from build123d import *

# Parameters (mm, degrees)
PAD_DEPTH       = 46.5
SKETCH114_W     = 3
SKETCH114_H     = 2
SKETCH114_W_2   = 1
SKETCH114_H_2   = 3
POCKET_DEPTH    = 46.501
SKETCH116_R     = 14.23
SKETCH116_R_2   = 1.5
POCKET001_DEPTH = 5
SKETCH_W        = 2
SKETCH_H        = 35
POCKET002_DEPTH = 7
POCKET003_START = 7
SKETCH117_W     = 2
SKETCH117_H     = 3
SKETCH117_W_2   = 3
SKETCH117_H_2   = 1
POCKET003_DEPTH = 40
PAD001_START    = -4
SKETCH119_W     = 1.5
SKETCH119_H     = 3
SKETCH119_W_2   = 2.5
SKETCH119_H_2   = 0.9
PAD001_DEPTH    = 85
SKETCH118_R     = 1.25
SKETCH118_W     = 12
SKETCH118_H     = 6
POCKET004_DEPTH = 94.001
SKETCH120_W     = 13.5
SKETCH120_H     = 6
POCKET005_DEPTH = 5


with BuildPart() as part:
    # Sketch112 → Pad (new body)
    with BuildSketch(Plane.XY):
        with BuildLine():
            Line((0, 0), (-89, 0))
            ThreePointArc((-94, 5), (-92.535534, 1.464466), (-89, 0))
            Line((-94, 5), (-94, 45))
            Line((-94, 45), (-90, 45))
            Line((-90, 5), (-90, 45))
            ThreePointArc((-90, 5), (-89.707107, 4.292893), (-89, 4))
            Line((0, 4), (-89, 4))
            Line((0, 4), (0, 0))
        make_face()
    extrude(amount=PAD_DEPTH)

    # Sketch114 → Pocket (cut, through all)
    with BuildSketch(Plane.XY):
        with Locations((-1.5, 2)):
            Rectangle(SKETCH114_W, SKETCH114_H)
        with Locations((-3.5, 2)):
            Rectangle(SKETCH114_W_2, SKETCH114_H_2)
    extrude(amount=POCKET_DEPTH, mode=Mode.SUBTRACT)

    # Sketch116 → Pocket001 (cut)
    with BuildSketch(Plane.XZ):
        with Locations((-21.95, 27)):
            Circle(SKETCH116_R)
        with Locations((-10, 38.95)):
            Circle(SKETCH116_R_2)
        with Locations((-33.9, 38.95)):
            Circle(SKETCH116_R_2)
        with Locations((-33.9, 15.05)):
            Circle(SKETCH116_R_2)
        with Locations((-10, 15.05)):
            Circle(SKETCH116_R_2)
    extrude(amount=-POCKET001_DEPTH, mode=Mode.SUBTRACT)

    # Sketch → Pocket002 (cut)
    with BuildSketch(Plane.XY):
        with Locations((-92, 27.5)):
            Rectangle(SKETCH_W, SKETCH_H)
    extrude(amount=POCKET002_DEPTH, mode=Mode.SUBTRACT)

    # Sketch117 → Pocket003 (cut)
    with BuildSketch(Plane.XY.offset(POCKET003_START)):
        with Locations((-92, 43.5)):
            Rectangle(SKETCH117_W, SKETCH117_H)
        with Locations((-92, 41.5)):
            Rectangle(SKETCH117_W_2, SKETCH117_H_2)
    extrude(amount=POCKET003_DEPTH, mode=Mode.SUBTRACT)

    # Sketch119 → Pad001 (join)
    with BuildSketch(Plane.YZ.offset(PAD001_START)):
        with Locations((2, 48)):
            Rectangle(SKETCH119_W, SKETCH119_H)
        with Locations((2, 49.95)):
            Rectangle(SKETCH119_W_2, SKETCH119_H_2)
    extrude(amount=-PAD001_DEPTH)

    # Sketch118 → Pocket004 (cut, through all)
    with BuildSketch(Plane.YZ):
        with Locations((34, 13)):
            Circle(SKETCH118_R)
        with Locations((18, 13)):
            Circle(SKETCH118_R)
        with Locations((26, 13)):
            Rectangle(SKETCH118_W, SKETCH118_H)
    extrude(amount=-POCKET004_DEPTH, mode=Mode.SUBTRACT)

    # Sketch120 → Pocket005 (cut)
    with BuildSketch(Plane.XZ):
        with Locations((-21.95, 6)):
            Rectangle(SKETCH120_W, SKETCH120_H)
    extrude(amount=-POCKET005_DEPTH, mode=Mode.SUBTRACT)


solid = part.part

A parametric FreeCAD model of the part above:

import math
import FreeCAD as App
import Part
import Sketcher

doc = App.newDocument("Part")
body = doc.addObject("PartDesign::Body", "Body")

# Sketch on XY plane
sketch1 = body.newObject("Sketcher::SketchObject", "Sketch")
sketch1.AttachmentSupport = (doc.getObject("XY_Plane"), [""])
sketch1.MapMode = "FlatFace"
sketch1.addGeometry(Part.LineSegment(App.Vector(-89, 0, 0), App.Vector(0, 0, 0)), False)
sketch1.addGeometry(Part.LineSegment(App.Vector(0, 0, 0), App.Vector(0, 4, 0)), False)
sketch1.addGeometry(Part.LineSegment(App.Vector(0, 4, 0), App.Vector(-89, 4, 0)), False)
sketch1.addGeometry(Part.ArcOfCircle(Part.Circle(App.Vector(-89.000001, 4.999999, 0), App.Vector(0, 0, 1), 0.999999), math.radians(179.999957), math.radians(270.000043)), False)
sketch1.addGeometry(Part.LineSegment(App.Vector(-90, 5, 0), App.Vector(-90, 45, 0)), False)
sketch1.addGeometry(Part.LineSegment(App.Vector(-90, 45, 0), App.Vector(-94, 45, 0)), False)
sketch1.addGeometry(Part.LineSegment(App.Vector(-94, 45, 0), App.Vector(-94, 5, 0)), False)
sketch1.addGeometry(Part.ArcOfCircle(Part.Circle(App.Vector(-89, 5, 0), App.Vector(0, 0, 1), 5), math.radians(179.999996), math.radians(270.000004)), False)
sketch1.addConstraint(Sketcher.Constraint("Coincident", 0, 2, 1, 1))
sketch1.addConstraint(Sketcher.Constraint("Coincident", 1, 2, 2, 1))
sketch1.addConstraint(Sketcher.Constraint("Tangent", 2, 2, 3, 2))
sketch1.addConstraint(Sketcher.Constraint("Tangent", 3, 1, 4, 1))
sketch1.addConstraint(Sketcher.Constraint("Coincident", 4, 2, 5, 1))
sketch1.addConstraint(Sketcher.Constraint("Coincident", 5, 2, 6, 1))
sketch1.addConstraint(Sketcher.Constraint("Tangent", 6, 2, 7, 1))
sketch1.addConstraint(Sketcher.Constraint("Tangent", 7, 2, 0, 1))
sketch1.addConstraint(Sketcher.Constraint("Horizontal", 0))
sketch1.addConstraint(Sketcher.Constraint("Vertical", 1))
sketch1.addConstraint(Sketcher.Constraint("Horizontal", 2))
sketch1.addConstraint(Sketcher.Constraint("Vertical", 4))
sketch1.addConstraint(Sketcher.Constraint("Horizontal", 5))
sketch1.addConstraint(Sketcher.Constraint("Vertical", 6))
sketch1.addConstraint(Sketcher.Constraint("Coincident", 0, 2, -1, 1))
sketch1.addConstraint(Sketcher.Constraint("Coincident", 7, 3, 3, 3))
sketch1.addConstraint(Sketcher.Constraint("Radius", 3, 0.999999))
sketch1.addConstraint(Sketcher.Constraint("Radius", 7, 5.0))
sketch1.addConstraint(Sketcher.Constraint("DistanceX", 0, 1, 0, 2, 89.0))
sketch1.addConstraint(Sketcher.Constraint("DistanceY", 4, 1, 4, 2, 40.0))
pad1 = body.newObject("PartDesign::Pad", "Pad")
pad1.Profile = sketch1
pad1.Length = 46.5

# Sketch on XY plane
sketch2 = body.newObject("Sketcher::SketchObject", "Sketch001")
sketch2.AttachmentSupport = (doc.getObject("XY_Plane"), [""])
sketch2.MapMode = "FlatFace"
sketch2.addGeometry(Part.LineSegment(App.Vector(-3, 1, 0), App.Vector(0, 1, 0)), False)
sketch2.addGeometry(Part.LineSegment(App.Vector(0, 1, 0), App.Vector(0, 3, 0)), False)
sketch2.addGeometry(Part.LineSegment(App.Vector(0, 3, 0), App.Vector(-3, 3, 0)), False)
sketch2.addGeometry(Part.LineSegment(App.Vector(-3, 3, 0), App.Vector(-3, 3.5, 0)), False)
sketch2.addGeometry(Part.LineSegment(App.Vector(-3, 3.5, 0), App.Vector(-4, 3.5, 0)), False)
sketch2.addGeometry(Part.LineSegment(App.Vector(-4, 3.5, 0), App.Vector(-4, 0.5, 0)), False)
sketch2.addGeometry(Part.LineSegment(App.Vector(-4, 0.5, 0), App.Vector(-3, 0.5, 0)), False)
sketch2.addGeometry(Part.LineSegment(App.Vector(-3, 0.5, 0), App.Vector(-3, 1, 0)), False)
sketch2.addConstraint(Sketcher.Constraint("Coincident", 0, 2, 1, 1))
sketch2.addConstraint(Sketcher.Constraint("Coincident", 1, 2, 2, 1))
sketch2.addConstraint(Sketcher.Constraint("Coincident", 2, 2, 3, 1))
sketch2.addConstraint(Sketcher.Constraint("Coincident", 3, 2, 4, 1))
sketch2.addConstraint(Sketcher.Constraint("Coincident", 4, 2, 5, 1))
sketch2.addConstraint(Sketcher.Constraint("Coincident", 5, 2, 6, 1))
sketch2.addConstraint(Sketcher.Constraint("Coincident", 6, 2, 7, 1))
sketch2.addConstraint(Sketcher.Constraint("Coincident", 7, 2, 0, 1))
sketch2.addConstraint(Sketcher.Constraint("Horizontal", 0))
sketch2.addConstraint(Sketcher.Constraint("Vertical", 1))
sketch2.addConstraint(Sketcher.Constraint("Horizontal", 2))
sketch2.addConstraint(Sketcher.Constraint("Vertical", 3))
sketch2.addConstraint(Sketcher.Constraint("Horizontal", 4))
sketch2.addConstraint(Sketcher.Constraint("Vertical", 5))
sketch2.addConstraint(Sketcher.Constraint("Horizontal", 6))
sketch2.addConstraint(Sketcher.Constraint("Vertical", 7))
sketch2.addConstraint(Sketcher.Constraint("PointOnObject", 0, 2, -2))
sketch2.addConstraint(Sketcher.Constraint("Vertical", 3, 2, 6, 2))
sketch2.addConstraint(Sketcher.Constraint("Equal", 2, 5))
sketch2.addConstraint(Sketcher.Constraint("Equal", 3, 7))
sketch2.addConstraint(Sketcher.Constraint("DistanceX", 0, 1, 0, 2, 3.0))
sketch2.addConstraint(Sketcher.Constraint("DistanceX", 4, 2, 4, 1, 1.0))
sketch2.addConstraint(Sketcher.Constraint("DistanceY", 1, 1, 1, 2, 2.0))
sketch2.addConstraint(Sketcher.Constraint("DistanceY", -1, 1, 0, 2, 1.0))
pocket1 = body.newObject("PartDesign::Pocket", "Pocket")
pocket1.Profile = sketch2
pocket1.Type = "ThroughAll"
pocket1.Reversed = True

# Sketch on XZ plane
sketch3 = body.newObject("Sketcher::SketchObject", "Sketch002")
sketch3.AttachmentSupport = (doc.getObject("XZ_Plane"), [""])
sketch3.MapMode = "FlatFace"
sketch3.addGeometry(Part.Circle(App.Vector(-21.95, 27, 0), App.Vector(0, 0, 1), 14.23), False)
sketch3.addGeometry(Part.Circle(App.Vector(-10, 38.95, 0), App.Vector(0, 0, 1), 1.5), False)
sketch3.addGeometry(Part.Circle(App.Vector(-33.9, 38.95, 0), App.Vector(0, 0, 1), 1.5), False)
sketch3.addGeometry(Part.Circle(App.Vector(-33.9, 15.05, 0), App.Vector(0, 0, 1), 1.5), False)
sketch3.addGeometry(Part.Circle(App.Vector(-10, 15.05, 0), App.Vector(0, 0, 1), 1.5), False)
sketch3.addConstraint(Sketcher.Constraint("Equal", 1, 2))
sketch3.addConstraint(Sketcher.Constraint("Equal", 2, 3))
sketch3.addConstraint(Sketcher.Constraint("Equal", 3, 4))
sketch3.addConstraint(Sketcher.Constraint("Horizontal", 1, 3, 2, 3))
sketch3.addConstraint(Sketcher.Constraint("Horizontal", 3, 3, 4, 3))
sketch3.addConstraint(Sketcher.Constraint("Vertical", 2, 3, 3, 3))
sketch3.addConstraint(Sketcher.Constraint("Vertical", 1, 3, 4, 3))
sketch3.addConstraint(Sketcher.Constraint("Diameter", 1, 3.0))
sketch3.addConstraint(Sketcher.Constraint("Diameter", 0, 28.46))
sketch3.addConstraint(Sketcher.Constraint("DistanceY", -1, 1, 0, 3, 27.0))
sketch3.addConstraint(Sketcher.Constraint("DistanceX", 1, 3, -1, 1, 10.0))
sketch3.addConstraint(Sketcher.Constraint("DistanceX", 2, 3, -1, 1, 33.9))
sketch3.addConstraint(Sketcher.Constraint("DistanceY", 3, 3, 2, 3, 23.9))
sketch3.addConstraint(Sketcher.Constraint("DistanceX", 0, 3, -1, 1, 21.95))
sketch3.addConstraint(Sketcher.Constraint("DistanceY", -1, 1, 1, 3, 38.95))
pocket2 = body.newObject("PartDesign::Pocket", "Pocket001")
pocket2.Profile = sketch3
pocket2.Length = 5

# Sketch on XY plane
sketch4 = body.newObject("Sketcher::SketchObject", "Sketch003")
sketch4.AttachmentSupport = (doc.getObject("XY_Plane"), [""])
sketch4.MapMode = "FlatFace"
sketch4.addGeometry(Part.LineSegment(App.Vector(-93, 45, 0), App.Vector(-93, 10, 0)), False)
sketch4.addGeometry(Part.LineSegment(App.Vector(-93, 10, 0), App.Vector(-91, 10, 0)), False)
sketch4.addGeometry(Part.LineSegment(App.Vector(-91, 10, 0), App.Vector(-91, 45, 0)), False)
sketch4.addGeometry(Part.LineSegment(App.Vector(-91, 45, 0), App.Vector(-93, 45, 0)), False)
sketch4.addConstraint(Sketcher.Constraint("Coincident", 0, 2, 1, 1))
sketch4.addConstraint(Sketcher.Constraint("Coincident", 1, 2, 2, 1))
sketch4.addConstraint(Sketcher.Constraint("Coincident", 2, 2, 3, 1))
sketch4.addConstraint(Sketcher.Constraint("Coincident", 3, 2, 0, 1))
sketch4.addConstraint(Sketcher.Constraint("Vertical", 0))
sketch4.addConstraint(Sketcher.Constraint("Horizontal", 1))
sketch4.addConstraint(Sketcher.Constraint("Vertical", 2))
sketch4.addConstraint(Sketcher.Constraint("Horizontal", 3))
sketch4.addConstraint(Sketcher.Constraint("DistanceX", 1, 1, 1, 2, 2.0))
sketch4.addConstraint(Sketcher.Constraint("DistanceY", 0, 2, 0, 1, 35.0))
sketch4.addConstraint(Sketcher.Constraint("DistanceX", 0, 2, -1, 1, 93.0))
sketch4.addConstraint(Sketcher.Constraint("DistanceY", -1, 1, 0, 2, 10.0))
pocket3 = body.newObject("PartDesign::Pocket", "Pocket002")
pocket3.Profile = sketch4
pocket3.Length = 7
pocket3.Reversed = True

# Sketch on XY plane
sketch5 = body.newObject("Sketcher::SketchObject", "Sketch004")
sketch5.AttachmentSupport = (doc.getObject("XY_Plane"), [""])
sketch5.MapMode = "FlatFace"
sketch5.AttachmentOffset = App.Placement(App.Vector(0, 0, 7), App.Rotation())
sketch5.addGeometry(Part.LineSegment(App.Vector(-93, 45, 0), App.Vector(-93, 42, 0)), False)
sketch5.addGeometry(Part.LineSegment(App.Vector(-93, 42, 0), App.Vector(-93.5, 42, 0)), False)
sketch5.addGeometry(Part.LineSegment(App.Vector(-93.5, 42, 0), App.Vector(-93.5, 41, 0)), False)
sketch5.addGeometry(Part.LineSegment(App.Vector(-93.5, 41, 0), App.Vector(-90.5, 41, 0)), False)
sketch5.addGeometry(Part.LineSegment(App.Vector(-90.5, 41, 0), App.Vector(-90.5, 42, 0)), False)
sketch5.addGeometry(Part.LineSegment(App.Vector(-90.5, 42, 0), App.Vector(-91, 42, 0)), False)
sketch5.addGeometry(Part.LineSegment(App.Vector(-91, 42, 0), App.Vector(-91, 45, 0)), False)
sketch5.addGeometry(Part.LineSegment(App.Vector(-91, 45, 0), App.Vector(-93, 45, 0)), False)
sketch5.addConstraint(Sketcher.Constraint("Coincident", 0, 2, 1, 1))
sketch5.addConstraint(Sketcher.Constraint("Coincident", 1, 2, 2, 1))
sketch5.addConstraint(Sketcher.Constraint("Coincident", 2, 2, 3, 1))
sketch5.addConstraint(Sketcher.Constraint("Coincident", 3, 2, 4, 1))
sketch5.addConstraint(Sketcher.Constraint("Coincident", 4, 2, 5, 1))
sketch5.addConstraint(Sketcher.Constraint("Coincident", 5, 2, 6, 1))
sketch5.addConstraint(Sketcher.Constraint("Coincident", 6, 2, 7, 1))
sketch5.addConstraint(Sketcher.Constraint("Coincident", 7, 2, 0, 1))
sketch5.addConstraint(Sketcher.Constraint("Vertical", 0))
sketch5.addConstraint(Sketcher.Constraint("Horizontal", 1))
sketch5.addConstraint(Sketcher.Constraint("Vertical", 2))
sketch5.addConstraint(Sketcher.Constraint("Horizontal", 3))
sketch5.addConstraint(Sketcher.Constraint("Vertical", 4))
sketch5.addConstraint(Sketcher.Constraint("Horizontal", 5))
sketch5.addConstraint(Sketcher.Constraint("Vertical", 6))
sketch5.addConstraint(Sketcher.Constraint("Horizontal", 7))
sketch5.addConstraint(Sketcher.Constraint("Horizontal", 1, 2, 4, 2))
sketch5.addConstraint(Sketcher.Constraint("Equal", 1, 5))
sketch5.addConstraint(Sketcher.Constraint("Equal", 3, 0))
sketch5.addConstraint(Sketcher.Constraint("DistanceX", 3, 1, 3, 2, 3.0))
sketch5.addConstraint(Sketcher.Constraint("DistanceX", 7, 2, 7, 1, 2.0))
sketch5.addConstraint(Sketcher.Constraint("DistanceY", 2, 2, 2, 1, 1.0))
sketch5.addConstraint(Sketcher.Constraint("DistanceX", 0, 2, -1, 1, 93.0))
sketch5.addConstraint(Sketcher.Constraint("DistanceY", -1, 1, 0, 2, 42.0))
pocket4 = body.newObject("PartDesign::Pocket", "Pocket003")
pocket4.Profile = sketch5
pocket4.Length = 40
pocket4.Reversed = True

# Sketch on YZ plane
sketch6 = body.newObject("Sketcher::SketchObject", "Sketch005")
sketch6.AttachmentSupport = (doc.getObject("YZ_Plane"), [""])
sketch6.MapMode = "FlatFace"
sketch6.AttachmentOffset = App.Placement(App.Vector(0, 0, -4), App.Rotation())
sketch6.addGeometry(Part.LineSegment(App.Vector(1.25, 49.5, 0), App.Vector(1.25, 46.5, 0)), False)
sketch6.addGeometry(Part.LineSegment(App.Vector(1.25, 46.5, 0), App.Vector(2.75, 46.5, 0)), False)
sketch6.addGeometry(Part.LineSegment(App.Vector(2.75, 46.5, 0), App.Vector(2.75, 49.5, 0)), False)
sketch6.addGeometry(Part.LineSegment(App.Vector(2.75, 49.5, 0), App.Vector(3.25, 49.5, 0)), False)
sketch6.addGeometry(Part.LineSegment(App.Vector(3.25, 49.5, 0), App.Vector(3.25, 50.4, 0)), False)
sketch6.addGeometry(Part.LineSegment(App.Vector(3.25, 50.4, 0), App.Vector(0.75, 50.4, 0)), False)
sketch6.addGeometry(Part.LineSegment(App.Vector(0.75, 50.4, 0), App.Vector(0.75, 49.5, 0)), False)
sketch6.addGeometry(Part.LineSegment(App.Vector(0.75, 49.5, 0), App.Vector(1.25, 49.5, 0)), False)
sketch6.addConstraint(Sketcher.Constraint("Coincident", 0, 2, 1, 1))
sketch6.addConstraint(Sketcher.Constraint("Coincident", 1, 2, 2, 1))
sketch6.addConstraint(Sketcher.Constraint("Coincident", 2, 2, 3, 1))
sketch6.addConstraint(Sketcher.Constraint("Coincident", 3, 2, 4, 1))
sketch6.addConstraint(Sketcher.Constraint("Coincident", 4, 2, 5, 1))
sketch6.addConstraint(Sketcher.Constraint("Coincident", 5, 2, 6, 1))
sketch6.addConstraint(Sketcher.Constraint("Coincident", 6, 2, 7, 1))
sketch6.addConstraint(Sketcher.Constraint("Coincident", 7, 2, 0, 1))
sketch6.addConstraint(Sketcher.Constraint("Vertical", 0))
sketch6.addConstraint(Sketcher.Constraint("Horizontal", 1))
sketch6.addConstraint(Sketcher.Constraint("Vertical", 2))
sketch6.addConstraint(Sketcher.Constraint("Horizontal", 3))
sketch6.addConstraint(Sketcher.Constraint("Vertical", 4))
sketch6.addConstraint(Sketcher.Constraint("Horizontal", 5))
sketch6.addConstraint(Sketcher.Constraint("Vertical", 6))
sketch6.addConstraint(Sketcher.Constraint("Horizontal", 7))
sketch6.addConstraint(Sketcher.Constraint("Horizontal", 3, 2, 6, 2))
sketch6.addConstraint(Sketcher.Constraint("Equal", 3, 7))
sketch6.addConstraint(Sketcher.Constraint("DistanceY", 0, 2, 0, 1, 3.0))
sketch6.addConstraint(Sketcher.Constraint("DistanceX", 1, 1, 1, 2, 1.5))
sketch6.addConstraint(Sketcher.Constraint("DistanceX", 3, 1, 3, 2, 0.5))
sketch6.addConstraint(Sketcher.Constraint("DistanceY", 4, 1, 4, 2, 0.9))
sketch6.addConstraint(Sketcher.Constraint("DistanceY", -1, 1, 0, 2, 46.5))
sketch6.addConstraint(Sketcher.Constraint("DistanceX", -1, 1, 0, 2, 1.25))
pad2 = body.newObject("PartDesign::Pad", "Pad001")
pad2.Profile = sketch6
pad2.Length = 85
pad2.Reversed = True

# Sketch on YZ plane
sketch7 = body.newObject("Sketcher::SketchObject", "Sketch006")
sketch7.AttachmentSupport = (doc.getObject("YZ_Plane"), [""])
sketch7.MapMode = "FlatFace"
sketch7.addGeometry(Part.Circle(App.Vector(34, 13, 0), App.Vector(0, 0, 1), 1.25), False)
sketch7.addGeometry(Part.Circle(App.Vector(18, 13, 0), App.Vector(0, 0, 1), 1.25), False)
sketch7.addGeometry(Part.LineSegment(App.Vector(20, 16, 0), App.Vector(20, 10, 0)), False)
sketch7.addGeometry(Part.LineSegment(App.Vector(20, 10, 0), App.Vector(32, 10, 0)), False)
sketch7.addGeometry(Part.LineSegment(App.Vector(32, 10, 0), App.Vector(32, 16, 0)), False)
sketch7.addGeometry(Part.LineSegment(App.Vector(32, 16, 0), App.Vector(20, 16, 0)), False)
sketch7.addConstraint(Sketcher.Constraint("Coincident", 2, 2, 3, 1))
sketch7.addConstraint(Sketcher.Constraint("Coincident", 3, 2, 4, 1))
sketch7.addConstraint(Sketcher.Constraint("Coincident", 4, 2, 5, 1))
sketch7.addConstraint(Sketcher.Constraint("Coincident", 5, 2, 2, 1))
sketch7.addConstraint(Sketcher.Constraint("Vertical", 2))
sketch7.addConstraint(Sketcher.Constraint("Horizontal", 3))
sketch7.addConstraint(Sketcher.Constraint("Vertical", 4))
sketch7.addConstraint(Sketcher.Constraint("Horizontal", 5))
sketch7.addConstraint(Sketcher.Constraint("Equal", 0, 1))
sketch7.addConstraint(Sketcher.Constraint("Horizontal", 0, 3, 1, 3))
sketch7.addConstraint(Sketcher.Constraint("Diameter", 0, 2.5))
sketch7.addConstraint(Sketcher.Constraint("DistanceX", 3, 1, 3, 2, 12.0))
sketch7.addConstraint(Sketcher.Constraint("DistanceY", 2, 2, 2, 1, 6.0))
sketch7.addConstraint(Sketcher.Constraint("DistanceX", -1, 1, 0, 3, 34.0))
sketch7.addConstraint(Sketcher.Constraint("DistanceY", -1, 1, 0, 3, 13.0))
sketch7.addConstraint(Sketcher.Constraint("DistanceX", -1, 1, 1, 3, 18.0))
sketch7.addConstraint(Sketcher.Constraint("DistanceX", -1, 1, 2, 2, 20.0))
sketch7.addConstraint(Sketcher.Constraint("DistanceY", -1, 1, 2, 2, 10.0))
pocket5 = body.newObject("PartDesign::Pocket", "Pocket004")
pocket5.Profile = sketch7
pocket5.Type = "ThroughAll"

# Sketch on XZ plane
sketch8 = body.newObject("Sketcher::SketchObject", "Sketch007")
sketch8.AttachmentSupport = (doc.getObject("XZ_Plane"), [""])
sketch8.MapMode = "FlatFace"
sketch8.addGeometry(Part.LineSegment(App.Vector(-28.7, 9, 0), App.Vector(-28.7, 3, 0)), False)
sketch8.addGeometry(Part.LineSegment(App.Vector(-28.7, 3, 0), App.Vector(-15.2, 3, 0)), False)
sketch8.addGeometry(Part.LineSegment(App.Vector(-15.2, 3, 0), App.Vector(-15.2, 9, 0)), False)
sketch8.addGeometry(Part.LineSegment(App.Vector(-15.2, 9, 0), App.Vector(-28.7, 9, 0)), False)
sketch8.addConstraint(Sketcher.Constraint("Coincident", 0, 2, 1, 1))
sketch8.addConstraint(Sketcher.Constraint("Coincident", 1, 2, 2, 1))
sketch8.addConstraint(Sketcher.Constraint("Coincident", 2, 2, 3, 1))
sketch8.addConstraint(Sketcher.Constraint("Coincident", 3, 2, 0, 1))
sketch8.addConstraint(Sketcher.Constraint("Vertical", 0))
sketch8.addConstraint(Sketcher.Constraint("Horizontal", 1))
sketch8.addConstraint(Sketcher.Constraint("Vertical", 2))
sketch8.addConstraint(Sketcher.Constraint("Horizontal", 3))
sketch8.addConstraint(Sketcher.Constraint("DistanceY", 0, 2, 0, 1, 6.0))
sketch8.addConstraint(Sketcher.Constraint("DistanceX", 1, 1, 1, 2, 13.5))
sketch8.addConstraint(Sketcher.Constraint("DistanceY", -1, 1, 0, 2, 3.0))
sketch8.addConstraint(Sketcher.Constraint("DistanceX", 0, 2, -1, 1, 28.7))
pocket6 = body.newObject("PartDesign::Pocket", "Pocket005")
pocket6.Profile = sketch8
pocket6.Length = 5

doc.recompute()
